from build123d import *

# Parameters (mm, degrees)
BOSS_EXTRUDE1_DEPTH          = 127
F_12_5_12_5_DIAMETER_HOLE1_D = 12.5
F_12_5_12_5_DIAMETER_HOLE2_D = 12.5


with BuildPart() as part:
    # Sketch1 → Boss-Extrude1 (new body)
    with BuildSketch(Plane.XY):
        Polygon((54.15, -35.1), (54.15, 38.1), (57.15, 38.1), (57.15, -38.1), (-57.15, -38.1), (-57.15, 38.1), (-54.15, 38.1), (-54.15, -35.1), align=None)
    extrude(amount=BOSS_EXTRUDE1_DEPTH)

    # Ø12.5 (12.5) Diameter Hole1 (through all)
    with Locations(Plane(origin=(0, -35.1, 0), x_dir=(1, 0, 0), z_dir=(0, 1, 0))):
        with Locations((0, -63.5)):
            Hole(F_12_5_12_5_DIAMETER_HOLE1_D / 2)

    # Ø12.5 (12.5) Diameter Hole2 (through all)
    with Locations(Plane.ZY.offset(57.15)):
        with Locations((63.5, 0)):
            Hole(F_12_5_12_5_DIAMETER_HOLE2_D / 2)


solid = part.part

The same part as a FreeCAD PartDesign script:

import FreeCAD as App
import Part
import Sketcher

V = App.Vector
Q = App.Units.Quantity


def add_polygon(sketch, points):
    """Adds a closed chain of lines whose ends are joined by coincident constraints."""
    first, n = sketch.GeometryCount, len(points)
    for a, b in zip(points, points[1:] + points[:1]):
        sketch.addGeometry(Part.LineSegment(App.Vector(*a, 0), App.Vector(*b, 0)), False)
    for i in range(n):
        sketch.addConstraint(Sketcher.Constraint("Coincident", first + i, 2, first + (i + 1) % n, 1))

doc = App.newDocument("Part")
body = doc.addObject("PartDesign::Body", "Body")

sketch1 = doc.addObject("Sketcher::SketchObject", "Sketch")
body.addObject(sketch1)
sketch1.AttachmentSupport = (doc.XY_Plane, [""])
sketch1.MapMode = "FlatFace"
add_polygon(sketch1, [(54.1, 38.1), (54.1, -35.1), (-54.1, -35.1), (-54.1, 38.1), (-57.1, 38.1), (-57.1, -38.1), (57.1, -38.1), (57.1, 38.1)])
sketch1.addConstraint([
    Sketcher.Constraint("Vertical", 0),
    Sketcher.Constraint("Horizontal", 1),
    Sketcher.Constraint("Vertical", 2),
    Sketcher.Constraint("Horizontal", 3),
    Sketcher.Constraint("Vertical", 4),
    Sketcher.Constraint("Horizontal", 5),
    Sketcher.Constraint("Vertical", 6),
    Sketcher.Constraint("Horizontal", 7),
    Sketcher.Constraint("Symmetric", 3, 2, 5, 2, -1, 1),
    Sketcher.Constraint("Symmetric", 2, 2, 7, 2, -2),
    Sketcher.Constraint("DistanceX", 3, 2, 3, 1, Q("3 mm")),
    Sketcher.Constraint("DistanceX", 1, 2, 1, 1, Q("108.3 mm")),
    Sketcher.Constraint("DistanceY", 0, 2, 0, 1, Q("73.2 mm")),
    Sketcher.Constraint("DistanceY", 4, 2, 4, 1, Q("76.2 mm")),
])
pad1 = doc.addObject("PartDesign::Pad", "Pad")
body.addObject(pad1)
pad1.Profile = sketch1
pad1.Length = 127

sketch2 = doc.addObject("Sketcher::SketchObject", "Sketch001")
body.addObject(sketch2)
sketch2.AttachmentSupport = (doc.XZ_Plane, [""])
sketch2.MapMode = "FlatFace"
sketch2.AttachmentOffset = App.Placement(V(0, 0, 35.1), App.Rotation())
sketch2.addGeometry(Part.Circle(V(0, 64, 0), V(0, 0, 1), 6), False)
sketch2.addConstraint([
    Sketcher.Constraint("PointOnObject", 0, 3, -2),
    Sketcher.Constraint("Diameter", 0, Q("12.5 mm")),
    Sketcher.Constraint("DistanceY", -1, 1, 0, 3, Q("63.5 mm")),
])
doc.recompute()
hole = doc.addObject("PartDesign::Hole", "Hole")
body.addObject(hole)
hole.Profile = sketch2
hole.ThreadType = "None"
hole.Diameter = 12.5
hole.DepthType = "ThroughAll"
hole.Reversed = True

sketch3 = doc.addObject("Sketcher::SketchObject", "Sketch002")
body.addObject(sketch3)
sketch3.AttachmentSupport = (doc.YZ_Plane, [""])
sketch3.MapMode = "FlatFace"
sketch3.AttachmentOffset = App.Placement(V(0, 0, -57.15), App.Rotation())
sketch3.addGeometry(Part.Circle(V(0, 64, 0), V(0, 0, 1), 6), False)
sketch3.addConstraint([
    Sketcher.Constraint("PointOnObject", 0, 3, -2),
    Sketcher.Constraint("Diameter", 0, Q("12.5 mm")),
    Sketcher.Constraint("DistanceY", -1, 1, 0, 3, Q("63.5 mm")),
])
doc.recompute()
hole2 = doc.addObject("PartDesign::Hole", "Hole001")
body.addObject(hole2)
hole2.Profile = sketch3
hole2.ThreadType = "None"
hole2.Diameter = 12.5
hole2.DepthType = "ThroughAll"
hole2.Reversed = True

doc.recompute()
